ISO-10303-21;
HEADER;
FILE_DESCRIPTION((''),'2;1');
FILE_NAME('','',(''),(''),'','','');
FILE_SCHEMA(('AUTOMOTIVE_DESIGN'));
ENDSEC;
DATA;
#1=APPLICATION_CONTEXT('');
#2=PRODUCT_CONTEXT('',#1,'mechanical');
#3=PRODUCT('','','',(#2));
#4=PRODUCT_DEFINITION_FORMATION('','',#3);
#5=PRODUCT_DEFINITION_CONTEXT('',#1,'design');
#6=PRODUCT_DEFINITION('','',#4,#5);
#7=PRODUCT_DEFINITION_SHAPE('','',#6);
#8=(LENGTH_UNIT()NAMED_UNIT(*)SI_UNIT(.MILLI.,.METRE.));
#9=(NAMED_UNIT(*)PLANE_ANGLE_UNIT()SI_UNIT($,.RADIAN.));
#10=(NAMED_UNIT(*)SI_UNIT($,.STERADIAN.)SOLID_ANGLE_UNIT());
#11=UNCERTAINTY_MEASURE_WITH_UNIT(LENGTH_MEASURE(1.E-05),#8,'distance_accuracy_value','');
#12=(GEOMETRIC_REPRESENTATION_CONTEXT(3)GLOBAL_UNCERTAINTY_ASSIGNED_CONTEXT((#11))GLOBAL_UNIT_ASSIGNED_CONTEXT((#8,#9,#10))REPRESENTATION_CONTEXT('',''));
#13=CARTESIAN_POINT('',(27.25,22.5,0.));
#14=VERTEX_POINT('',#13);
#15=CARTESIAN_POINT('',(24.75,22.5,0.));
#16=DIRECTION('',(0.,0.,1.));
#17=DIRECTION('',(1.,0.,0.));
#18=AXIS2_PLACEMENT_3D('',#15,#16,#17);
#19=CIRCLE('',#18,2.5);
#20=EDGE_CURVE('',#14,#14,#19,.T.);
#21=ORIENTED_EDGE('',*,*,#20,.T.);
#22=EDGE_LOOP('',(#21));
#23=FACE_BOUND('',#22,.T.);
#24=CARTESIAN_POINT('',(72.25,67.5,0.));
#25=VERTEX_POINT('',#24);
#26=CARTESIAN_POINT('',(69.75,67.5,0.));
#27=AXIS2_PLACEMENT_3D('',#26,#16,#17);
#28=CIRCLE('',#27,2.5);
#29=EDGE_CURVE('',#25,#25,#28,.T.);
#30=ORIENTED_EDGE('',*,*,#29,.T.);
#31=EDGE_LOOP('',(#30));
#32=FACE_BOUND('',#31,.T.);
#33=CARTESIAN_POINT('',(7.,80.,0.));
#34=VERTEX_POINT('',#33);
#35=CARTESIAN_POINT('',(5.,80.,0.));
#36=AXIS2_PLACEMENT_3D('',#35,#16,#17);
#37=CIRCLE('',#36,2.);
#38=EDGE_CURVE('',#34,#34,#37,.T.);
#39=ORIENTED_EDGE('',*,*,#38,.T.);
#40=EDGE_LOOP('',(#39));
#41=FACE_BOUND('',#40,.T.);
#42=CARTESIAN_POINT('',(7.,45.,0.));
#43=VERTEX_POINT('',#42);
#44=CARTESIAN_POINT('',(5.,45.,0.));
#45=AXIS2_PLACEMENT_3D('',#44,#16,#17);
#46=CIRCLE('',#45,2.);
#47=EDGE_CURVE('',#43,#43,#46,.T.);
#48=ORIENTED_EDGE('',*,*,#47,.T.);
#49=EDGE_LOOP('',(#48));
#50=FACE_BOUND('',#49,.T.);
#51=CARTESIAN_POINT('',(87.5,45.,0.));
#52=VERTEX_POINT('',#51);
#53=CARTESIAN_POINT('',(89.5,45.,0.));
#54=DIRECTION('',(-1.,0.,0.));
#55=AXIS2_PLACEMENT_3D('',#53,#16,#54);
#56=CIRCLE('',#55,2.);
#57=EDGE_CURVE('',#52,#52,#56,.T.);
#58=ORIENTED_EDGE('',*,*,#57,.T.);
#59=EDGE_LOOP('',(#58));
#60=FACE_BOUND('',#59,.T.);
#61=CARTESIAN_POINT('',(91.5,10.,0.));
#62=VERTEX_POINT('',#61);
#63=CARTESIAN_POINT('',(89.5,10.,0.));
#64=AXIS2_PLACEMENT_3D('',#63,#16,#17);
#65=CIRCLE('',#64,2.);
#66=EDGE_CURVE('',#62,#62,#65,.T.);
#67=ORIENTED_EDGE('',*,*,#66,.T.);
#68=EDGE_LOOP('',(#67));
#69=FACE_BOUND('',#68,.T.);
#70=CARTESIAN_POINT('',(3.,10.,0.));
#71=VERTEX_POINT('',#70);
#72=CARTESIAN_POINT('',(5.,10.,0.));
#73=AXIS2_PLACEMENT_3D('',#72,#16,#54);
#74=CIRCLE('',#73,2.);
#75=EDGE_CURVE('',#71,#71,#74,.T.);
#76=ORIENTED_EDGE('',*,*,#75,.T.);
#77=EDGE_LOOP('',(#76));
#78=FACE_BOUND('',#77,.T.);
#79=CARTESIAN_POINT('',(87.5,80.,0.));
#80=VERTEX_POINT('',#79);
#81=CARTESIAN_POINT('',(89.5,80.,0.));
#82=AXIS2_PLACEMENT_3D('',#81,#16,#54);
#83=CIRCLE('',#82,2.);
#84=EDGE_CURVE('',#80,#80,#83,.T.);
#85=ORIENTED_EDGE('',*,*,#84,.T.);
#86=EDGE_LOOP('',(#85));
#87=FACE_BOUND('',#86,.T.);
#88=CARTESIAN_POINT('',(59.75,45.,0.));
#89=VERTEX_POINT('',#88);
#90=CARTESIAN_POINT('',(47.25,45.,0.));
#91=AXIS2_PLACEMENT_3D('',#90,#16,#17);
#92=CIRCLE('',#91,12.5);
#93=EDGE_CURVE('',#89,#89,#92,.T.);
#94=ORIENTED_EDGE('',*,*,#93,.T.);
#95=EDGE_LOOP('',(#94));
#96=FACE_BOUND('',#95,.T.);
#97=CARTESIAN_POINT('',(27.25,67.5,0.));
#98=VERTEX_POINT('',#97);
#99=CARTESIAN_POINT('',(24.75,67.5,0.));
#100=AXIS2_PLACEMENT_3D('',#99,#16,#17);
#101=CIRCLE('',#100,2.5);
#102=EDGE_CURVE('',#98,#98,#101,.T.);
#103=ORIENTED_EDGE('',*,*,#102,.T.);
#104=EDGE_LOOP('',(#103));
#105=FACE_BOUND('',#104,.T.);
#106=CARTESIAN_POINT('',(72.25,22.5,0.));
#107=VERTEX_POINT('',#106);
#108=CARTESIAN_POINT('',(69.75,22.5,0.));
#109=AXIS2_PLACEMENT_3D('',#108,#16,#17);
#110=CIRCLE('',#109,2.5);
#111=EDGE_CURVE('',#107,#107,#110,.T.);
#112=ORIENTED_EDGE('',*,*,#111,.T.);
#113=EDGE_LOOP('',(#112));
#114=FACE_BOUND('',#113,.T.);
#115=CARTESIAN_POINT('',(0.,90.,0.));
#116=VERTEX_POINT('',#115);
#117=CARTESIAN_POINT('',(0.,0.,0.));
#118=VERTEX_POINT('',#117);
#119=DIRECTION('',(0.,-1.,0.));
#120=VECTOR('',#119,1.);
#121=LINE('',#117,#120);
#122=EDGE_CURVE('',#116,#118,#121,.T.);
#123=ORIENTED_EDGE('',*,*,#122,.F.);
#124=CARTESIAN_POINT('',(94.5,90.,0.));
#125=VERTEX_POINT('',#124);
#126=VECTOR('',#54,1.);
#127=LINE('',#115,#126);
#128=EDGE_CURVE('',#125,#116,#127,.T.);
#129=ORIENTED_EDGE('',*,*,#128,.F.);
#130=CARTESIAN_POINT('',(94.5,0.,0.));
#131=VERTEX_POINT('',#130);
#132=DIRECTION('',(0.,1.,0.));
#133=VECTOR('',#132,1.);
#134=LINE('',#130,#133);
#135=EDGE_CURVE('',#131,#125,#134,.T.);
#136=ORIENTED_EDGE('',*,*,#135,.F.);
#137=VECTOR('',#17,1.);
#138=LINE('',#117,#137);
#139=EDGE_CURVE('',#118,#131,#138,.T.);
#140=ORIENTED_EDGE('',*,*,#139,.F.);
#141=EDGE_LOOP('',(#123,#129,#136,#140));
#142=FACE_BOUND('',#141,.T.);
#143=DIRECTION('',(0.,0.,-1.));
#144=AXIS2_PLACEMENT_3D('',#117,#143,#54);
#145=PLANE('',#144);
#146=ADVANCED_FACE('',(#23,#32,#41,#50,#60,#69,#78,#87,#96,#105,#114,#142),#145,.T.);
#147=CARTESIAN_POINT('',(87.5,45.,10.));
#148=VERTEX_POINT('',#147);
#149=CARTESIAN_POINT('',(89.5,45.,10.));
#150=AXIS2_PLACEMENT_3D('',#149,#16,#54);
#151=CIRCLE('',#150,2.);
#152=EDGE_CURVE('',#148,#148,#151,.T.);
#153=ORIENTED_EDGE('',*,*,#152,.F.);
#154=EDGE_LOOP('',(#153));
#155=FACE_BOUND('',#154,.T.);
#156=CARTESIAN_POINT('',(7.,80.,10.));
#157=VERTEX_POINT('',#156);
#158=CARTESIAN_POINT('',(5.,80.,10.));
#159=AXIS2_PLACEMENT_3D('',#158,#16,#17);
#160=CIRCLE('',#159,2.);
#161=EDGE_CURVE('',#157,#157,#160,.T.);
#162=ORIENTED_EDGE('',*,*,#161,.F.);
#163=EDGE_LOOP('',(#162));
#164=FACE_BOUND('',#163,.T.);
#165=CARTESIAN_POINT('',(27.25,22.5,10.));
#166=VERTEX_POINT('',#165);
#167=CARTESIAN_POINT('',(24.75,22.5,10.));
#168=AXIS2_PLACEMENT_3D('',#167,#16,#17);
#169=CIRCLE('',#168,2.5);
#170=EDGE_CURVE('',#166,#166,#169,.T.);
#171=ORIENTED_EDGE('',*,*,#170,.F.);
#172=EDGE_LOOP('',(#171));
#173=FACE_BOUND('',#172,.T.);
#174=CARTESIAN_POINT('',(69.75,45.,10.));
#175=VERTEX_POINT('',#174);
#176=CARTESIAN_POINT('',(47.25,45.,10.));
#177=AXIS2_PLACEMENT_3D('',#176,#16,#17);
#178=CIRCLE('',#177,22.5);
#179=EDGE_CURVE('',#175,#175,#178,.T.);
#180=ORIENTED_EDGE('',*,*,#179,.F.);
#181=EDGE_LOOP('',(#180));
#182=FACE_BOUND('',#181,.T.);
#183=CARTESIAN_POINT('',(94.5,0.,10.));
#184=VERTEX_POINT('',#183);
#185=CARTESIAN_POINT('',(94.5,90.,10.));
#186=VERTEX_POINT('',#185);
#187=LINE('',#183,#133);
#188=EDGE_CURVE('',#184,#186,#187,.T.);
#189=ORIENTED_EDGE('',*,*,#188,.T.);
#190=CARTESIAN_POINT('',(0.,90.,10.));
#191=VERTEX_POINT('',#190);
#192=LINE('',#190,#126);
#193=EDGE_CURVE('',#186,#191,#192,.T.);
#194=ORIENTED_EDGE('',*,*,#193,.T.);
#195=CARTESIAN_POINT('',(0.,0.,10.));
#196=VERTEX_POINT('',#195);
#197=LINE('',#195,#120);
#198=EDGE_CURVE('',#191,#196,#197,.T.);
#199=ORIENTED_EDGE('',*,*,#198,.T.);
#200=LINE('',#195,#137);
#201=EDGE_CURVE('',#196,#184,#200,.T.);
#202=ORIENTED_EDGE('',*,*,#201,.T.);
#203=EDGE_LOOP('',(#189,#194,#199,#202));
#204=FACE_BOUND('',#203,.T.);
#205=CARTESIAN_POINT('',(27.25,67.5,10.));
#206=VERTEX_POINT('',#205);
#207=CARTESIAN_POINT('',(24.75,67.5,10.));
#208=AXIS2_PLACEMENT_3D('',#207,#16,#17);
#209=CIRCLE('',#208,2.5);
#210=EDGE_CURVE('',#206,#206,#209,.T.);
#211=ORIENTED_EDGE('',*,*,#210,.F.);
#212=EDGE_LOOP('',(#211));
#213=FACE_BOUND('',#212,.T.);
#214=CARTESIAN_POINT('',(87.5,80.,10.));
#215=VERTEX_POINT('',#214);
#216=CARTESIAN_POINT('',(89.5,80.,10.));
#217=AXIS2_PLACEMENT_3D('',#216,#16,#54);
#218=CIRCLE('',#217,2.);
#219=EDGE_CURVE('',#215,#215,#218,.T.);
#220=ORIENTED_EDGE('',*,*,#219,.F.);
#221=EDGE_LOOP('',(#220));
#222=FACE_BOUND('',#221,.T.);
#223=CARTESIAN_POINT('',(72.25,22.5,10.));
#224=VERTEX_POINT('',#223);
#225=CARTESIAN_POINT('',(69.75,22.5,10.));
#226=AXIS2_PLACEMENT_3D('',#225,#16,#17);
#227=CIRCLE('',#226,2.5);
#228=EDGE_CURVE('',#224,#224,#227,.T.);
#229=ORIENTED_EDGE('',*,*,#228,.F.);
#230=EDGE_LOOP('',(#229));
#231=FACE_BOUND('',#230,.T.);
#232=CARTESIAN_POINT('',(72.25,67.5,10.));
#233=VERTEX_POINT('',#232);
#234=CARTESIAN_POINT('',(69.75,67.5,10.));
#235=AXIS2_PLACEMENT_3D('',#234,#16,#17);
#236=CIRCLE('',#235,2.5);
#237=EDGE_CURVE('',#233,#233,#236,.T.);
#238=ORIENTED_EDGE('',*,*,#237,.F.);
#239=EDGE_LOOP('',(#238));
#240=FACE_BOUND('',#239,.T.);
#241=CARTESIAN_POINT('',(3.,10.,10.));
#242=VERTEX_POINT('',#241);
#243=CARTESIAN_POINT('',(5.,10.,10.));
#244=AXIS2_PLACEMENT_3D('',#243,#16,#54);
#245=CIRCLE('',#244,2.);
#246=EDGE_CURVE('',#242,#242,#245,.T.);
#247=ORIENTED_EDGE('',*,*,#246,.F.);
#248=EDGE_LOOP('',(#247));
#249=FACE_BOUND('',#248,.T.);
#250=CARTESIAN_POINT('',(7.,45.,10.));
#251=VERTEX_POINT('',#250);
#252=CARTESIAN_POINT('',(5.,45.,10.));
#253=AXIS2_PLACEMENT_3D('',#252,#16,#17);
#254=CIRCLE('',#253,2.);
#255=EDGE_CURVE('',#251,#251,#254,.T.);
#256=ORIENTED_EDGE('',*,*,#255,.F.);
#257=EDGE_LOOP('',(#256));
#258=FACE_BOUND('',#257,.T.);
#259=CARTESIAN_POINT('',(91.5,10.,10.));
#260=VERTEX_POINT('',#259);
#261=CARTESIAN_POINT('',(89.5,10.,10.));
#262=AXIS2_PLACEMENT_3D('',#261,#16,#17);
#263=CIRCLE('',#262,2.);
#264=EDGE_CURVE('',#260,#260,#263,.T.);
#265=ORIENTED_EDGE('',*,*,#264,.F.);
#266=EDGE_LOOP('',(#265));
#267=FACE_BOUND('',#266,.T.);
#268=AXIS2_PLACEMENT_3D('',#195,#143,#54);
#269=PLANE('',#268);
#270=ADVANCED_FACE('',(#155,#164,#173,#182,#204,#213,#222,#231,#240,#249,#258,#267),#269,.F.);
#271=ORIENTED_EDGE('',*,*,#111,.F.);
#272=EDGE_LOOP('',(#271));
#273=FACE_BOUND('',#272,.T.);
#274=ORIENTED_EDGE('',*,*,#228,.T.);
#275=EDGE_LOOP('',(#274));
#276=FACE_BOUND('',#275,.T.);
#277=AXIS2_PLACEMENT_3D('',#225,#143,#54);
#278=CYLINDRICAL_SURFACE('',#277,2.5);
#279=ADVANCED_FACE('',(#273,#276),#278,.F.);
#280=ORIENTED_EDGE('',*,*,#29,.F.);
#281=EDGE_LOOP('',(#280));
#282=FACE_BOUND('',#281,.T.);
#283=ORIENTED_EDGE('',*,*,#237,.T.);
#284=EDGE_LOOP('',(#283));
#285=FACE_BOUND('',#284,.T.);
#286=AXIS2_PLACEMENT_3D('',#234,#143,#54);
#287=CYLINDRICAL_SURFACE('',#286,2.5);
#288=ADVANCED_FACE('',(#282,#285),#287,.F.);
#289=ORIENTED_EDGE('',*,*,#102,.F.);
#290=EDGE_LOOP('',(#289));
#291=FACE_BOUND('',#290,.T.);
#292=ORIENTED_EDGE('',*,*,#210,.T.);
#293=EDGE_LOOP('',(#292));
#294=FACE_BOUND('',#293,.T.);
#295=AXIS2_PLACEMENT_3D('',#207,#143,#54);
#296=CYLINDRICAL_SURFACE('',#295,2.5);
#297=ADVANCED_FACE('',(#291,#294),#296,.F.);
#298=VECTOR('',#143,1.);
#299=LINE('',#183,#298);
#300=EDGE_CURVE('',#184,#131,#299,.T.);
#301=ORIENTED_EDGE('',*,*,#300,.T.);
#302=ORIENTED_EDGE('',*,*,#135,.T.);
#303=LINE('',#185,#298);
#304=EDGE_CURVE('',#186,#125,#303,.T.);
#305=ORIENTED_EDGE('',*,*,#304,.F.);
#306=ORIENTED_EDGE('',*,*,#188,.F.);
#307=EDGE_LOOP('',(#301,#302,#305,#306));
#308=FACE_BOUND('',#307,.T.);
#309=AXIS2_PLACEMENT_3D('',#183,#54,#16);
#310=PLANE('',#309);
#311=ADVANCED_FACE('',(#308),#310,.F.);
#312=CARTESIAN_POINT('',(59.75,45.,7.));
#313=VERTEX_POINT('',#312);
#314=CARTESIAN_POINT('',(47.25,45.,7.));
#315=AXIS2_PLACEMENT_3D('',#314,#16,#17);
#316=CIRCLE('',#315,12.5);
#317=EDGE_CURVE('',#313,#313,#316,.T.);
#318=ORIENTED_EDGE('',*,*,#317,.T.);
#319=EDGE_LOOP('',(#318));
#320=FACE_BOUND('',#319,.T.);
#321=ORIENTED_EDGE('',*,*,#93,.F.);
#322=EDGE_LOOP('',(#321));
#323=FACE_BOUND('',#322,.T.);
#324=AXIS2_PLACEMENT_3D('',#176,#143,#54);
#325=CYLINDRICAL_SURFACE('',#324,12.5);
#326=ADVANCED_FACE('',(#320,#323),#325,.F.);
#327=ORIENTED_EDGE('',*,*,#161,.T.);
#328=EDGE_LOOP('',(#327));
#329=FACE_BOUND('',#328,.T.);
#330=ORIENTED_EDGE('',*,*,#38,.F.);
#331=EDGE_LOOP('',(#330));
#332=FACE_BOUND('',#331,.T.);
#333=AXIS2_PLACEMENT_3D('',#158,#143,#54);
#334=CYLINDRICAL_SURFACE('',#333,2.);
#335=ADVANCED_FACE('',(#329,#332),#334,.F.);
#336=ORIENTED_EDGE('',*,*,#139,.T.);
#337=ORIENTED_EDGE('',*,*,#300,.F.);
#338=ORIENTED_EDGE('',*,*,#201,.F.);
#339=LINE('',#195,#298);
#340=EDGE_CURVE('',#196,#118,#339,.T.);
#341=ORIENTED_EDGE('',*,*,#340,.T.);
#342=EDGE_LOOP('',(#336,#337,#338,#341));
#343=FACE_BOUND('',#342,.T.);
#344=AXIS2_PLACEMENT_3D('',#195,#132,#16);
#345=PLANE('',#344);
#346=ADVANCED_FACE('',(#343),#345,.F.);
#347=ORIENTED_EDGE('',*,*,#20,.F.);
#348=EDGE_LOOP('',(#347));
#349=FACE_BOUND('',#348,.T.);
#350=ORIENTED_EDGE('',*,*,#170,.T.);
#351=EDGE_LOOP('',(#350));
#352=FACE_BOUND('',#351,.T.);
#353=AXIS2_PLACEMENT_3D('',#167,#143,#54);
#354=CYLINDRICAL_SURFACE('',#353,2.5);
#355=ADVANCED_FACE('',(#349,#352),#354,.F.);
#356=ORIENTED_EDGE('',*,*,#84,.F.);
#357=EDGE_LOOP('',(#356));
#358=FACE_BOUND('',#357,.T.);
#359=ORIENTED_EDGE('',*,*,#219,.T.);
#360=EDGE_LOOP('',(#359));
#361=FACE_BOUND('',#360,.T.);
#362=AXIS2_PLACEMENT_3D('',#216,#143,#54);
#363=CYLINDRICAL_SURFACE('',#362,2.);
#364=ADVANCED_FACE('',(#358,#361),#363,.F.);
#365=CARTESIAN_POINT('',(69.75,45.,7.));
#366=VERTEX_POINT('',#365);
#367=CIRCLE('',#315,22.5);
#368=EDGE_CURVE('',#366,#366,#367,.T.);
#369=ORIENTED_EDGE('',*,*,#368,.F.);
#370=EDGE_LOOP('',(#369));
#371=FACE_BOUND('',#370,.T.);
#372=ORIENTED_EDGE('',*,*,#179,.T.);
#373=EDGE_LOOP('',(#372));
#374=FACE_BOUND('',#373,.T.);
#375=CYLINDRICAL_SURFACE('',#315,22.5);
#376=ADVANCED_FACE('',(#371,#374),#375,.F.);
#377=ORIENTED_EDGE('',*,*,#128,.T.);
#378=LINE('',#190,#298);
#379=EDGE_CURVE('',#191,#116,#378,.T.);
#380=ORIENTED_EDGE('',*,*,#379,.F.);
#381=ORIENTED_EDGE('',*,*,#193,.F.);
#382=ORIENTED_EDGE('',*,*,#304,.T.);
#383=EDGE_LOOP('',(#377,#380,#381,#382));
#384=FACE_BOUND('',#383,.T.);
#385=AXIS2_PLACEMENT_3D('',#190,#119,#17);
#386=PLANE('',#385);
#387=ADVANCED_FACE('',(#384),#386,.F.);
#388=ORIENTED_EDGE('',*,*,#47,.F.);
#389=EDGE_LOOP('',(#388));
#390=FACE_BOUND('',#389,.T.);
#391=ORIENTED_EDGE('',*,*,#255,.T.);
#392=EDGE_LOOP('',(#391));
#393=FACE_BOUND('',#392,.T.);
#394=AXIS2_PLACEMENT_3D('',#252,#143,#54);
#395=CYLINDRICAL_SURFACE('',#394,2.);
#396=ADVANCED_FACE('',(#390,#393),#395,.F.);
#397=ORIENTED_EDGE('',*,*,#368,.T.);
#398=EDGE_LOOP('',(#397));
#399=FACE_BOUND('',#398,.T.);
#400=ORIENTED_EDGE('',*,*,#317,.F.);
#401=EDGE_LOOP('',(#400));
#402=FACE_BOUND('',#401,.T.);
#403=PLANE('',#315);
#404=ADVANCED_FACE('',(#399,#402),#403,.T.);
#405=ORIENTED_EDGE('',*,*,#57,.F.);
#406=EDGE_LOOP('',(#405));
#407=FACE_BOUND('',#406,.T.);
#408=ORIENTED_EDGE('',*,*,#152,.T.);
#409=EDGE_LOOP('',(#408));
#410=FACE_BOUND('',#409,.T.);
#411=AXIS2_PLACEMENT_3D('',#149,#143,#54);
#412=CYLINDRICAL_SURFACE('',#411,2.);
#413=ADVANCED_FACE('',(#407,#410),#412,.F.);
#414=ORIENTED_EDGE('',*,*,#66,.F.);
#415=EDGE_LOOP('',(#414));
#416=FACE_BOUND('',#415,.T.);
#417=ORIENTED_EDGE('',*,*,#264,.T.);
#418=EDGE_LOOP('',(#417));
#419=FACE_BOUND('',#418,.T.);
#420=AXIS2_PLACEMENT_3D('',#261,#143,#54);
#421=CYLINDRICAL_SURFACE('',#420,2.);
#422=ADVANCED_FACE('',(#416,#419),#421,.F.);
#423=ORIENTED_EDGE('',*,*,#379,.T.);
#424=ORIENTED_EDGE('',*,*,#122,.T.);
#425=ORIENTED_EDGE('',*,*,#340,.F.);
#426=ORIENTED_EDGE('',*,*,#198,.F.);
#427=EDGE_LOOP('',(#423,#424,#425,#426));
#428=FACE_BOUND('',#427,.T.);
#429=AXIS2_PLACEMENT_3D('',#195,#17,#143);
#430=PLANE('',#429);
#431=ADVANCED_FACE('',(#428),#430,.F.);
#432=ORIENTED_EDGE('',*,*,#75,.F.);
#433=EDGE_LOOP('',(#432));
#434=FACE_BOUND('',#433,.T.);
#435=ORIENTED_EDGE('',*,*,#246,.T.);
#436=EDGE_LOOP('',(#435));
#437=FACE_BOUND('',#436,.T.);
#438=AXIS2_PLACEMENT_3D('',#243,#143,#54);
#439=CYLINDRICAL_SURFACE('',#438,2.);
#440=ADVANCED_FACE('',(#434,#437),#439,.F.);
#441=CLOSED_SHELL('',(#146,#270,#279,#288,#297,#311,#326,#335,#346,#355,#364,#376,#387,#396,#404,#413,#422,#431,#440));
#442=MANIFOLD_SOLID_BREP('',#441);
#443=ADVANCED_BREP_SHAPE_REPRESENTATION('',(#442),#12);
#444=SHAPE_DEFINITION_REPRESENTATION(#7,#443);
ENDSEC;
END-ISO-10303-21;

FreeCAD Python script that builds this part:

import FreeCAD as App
import Part
import Sketcher


def add_polygon(sketch, points):
    """Adds a closed chain of lines whose ends are joined by coincident constraints."""
    first, n = sketch.GeometryCount, len(points)
    for a, b in zip(points, points[1:] + points[:1]):
        sketch.addGeometry(Part.LineSegment(App.Vector(*a, 0), App.Vector(*b, 0)), False)
    for i in range(n):
        sketch.addConstraint(Sketcher.Constraint("Coincident", first + i, 2, first + (i + 1) % n, 1))

doc = App.newDocument("Part")
body = doc.addObject("PartDesign::Body", "Body")

# Sketch on XY plane
sketch1 = body.newObject("Sketcher::SketchObject", "Sketch")
sketch1.AttachmentSupport = (doc.getObject("XY_Plane"), [""])
sketch1.MapMode = "FlatFace"
add_polygon(sketch1, [(0, 90), (0, 0), (94.5, 0), (94.5, 90)])  # lines 0-3
sketch1.addGeometry(Part.Circle(App.Vector(5, 10, 0), App.Vector(0, 0, 1), 2), False)  # 4
sketch1.addGeometry(Part.Circle(App.Vector(24.8, 22.5, 0), App.Vector(0, 0, 1), 2.5), False)  # 5
sketch1.addGeometry(Part.Circle(App.Vector(89.5, 10, 0), App.Vector(0, 0, 1), 2), False)  # 6
sketch1.addGeometry(Part.Circle(App.Vector(69.8, 22.5, 0), App.Vector(0, 0, 1), 2.5), False)  # 7
sketch1.addGeometry(Part.Circle(App.Vector(5, 45, 0), App.Vector(0, 0, 1), 2), False)  # 8
sketch1.addGeometry(Part.Circle(App.Vector(24.8, 67.5, 0), App.Vector(0, 0, 1), 2.5), False)  # 9
sketch1.addGeometry(Part.Circle(App.Vector(5, 80, 0), App.Vector(0, 0, 1), 2), False)  # 10
sketch1.addGeometry(Part.Circle(App.Vector(47.2, 45, 0), App.Vector(0, 0, 1), 12.5), False)  # 11
sketch1.addGeometry(Part.Circle(App.Vector(89.5, 45, 0), App.Vector(0, 0, 1), 2), False)  # 12
sketch1.addGeometry(Part.Circle(App.Vector(69.8, 67.5, 0), App.Vector(0, 0, 1), 2.5), False)  # 13
sketch1.addGeometry(Part.Circle(App.Vector(89.5, 80, 0), App.Vector(0, 0, 1), 2), False)  # 14
sketch1.addConstraint(Sketcher.Constraint("Vertical", 0))
sketch1.addConstraint(Sketcher.Constraint("Horizontal", 1))
sketch1.addConstraint(Sketcher.Constraint("Vertical", 2))
sketch1.addConstraint(Sketcher.Constraint("Horizontal", 3))
sketch1.addConstraint(Sketcher.Constraint("Coincident", 0, 2, -1, 1))
sketch1.addConstraint(Sketcher.Constraint("Equal", 4, 6))
sketch1.addConstraint(Sketcher.Constraint("Equal", 5, 7))
sketch1.addConstraint(Sketcher.Constraint("Equal", 6, 8))
sketch1.addConstraint(Sketcher.Constraint("Equal", 7, 9))
sketch1.addConstraint(Sketcher.Constraint("Equal", 8, 10))
sketch1.addConstraint(Sketcher.Constraint("Equal", 10, 12))
sketch1.addConstraint(Sketcher.Constraint("Equal", 9, 13))
sketch1.addConstraint(Sketcher.Constraint("Equal", 12, 14))
sketch1.addConstraint(Sketcher.Constraint("Horizontal", 4, 3, 6, 3))
sketch1.addConstraint(Sketcher.Constraint("Horizontal", 5, 3, 7, 3))
sketch1.addConstraint(Sketcher.Constraint("Horizontal", 8, 3, 11, 3))
sketch1.addConstraint(Sketcher.Constraint("Horizontal", 11, 3, 12, 3))
sketch1.addConstraint(Sketcher.Constraint("Horizontal", 9, 3, 13, 3))
sketch1.addConstraint(Sketcher.Constraint("Horizontal", 10, 3, 14, 3))
sketch1.addConstraint(Sketcher.Constraint("Vertical", 4, 3, 8, 3))
sketch1.addConstraint(Sketcher.Constraint("Vertical", 5, 3, 9, 3))
sketch1.addConstraint(Sketcher.Constraint("Vertical", 8, 3, 10, 3))
sketch1.addConstraint(Sketcher.Constraint("Vertical", 6, 3, 12, 3))
sketch1.addConstraint(Sketcher.Constraint("Vertical", 7, 3, 13, 3))
sketch1.addConstraint(Sketcher.Constraint("Vertical", 12, 3, 14, 3))
sketch1.addConstraint(Sketcher.Constraint("Diameter", 4, 4.0))
sketch1.addConstraint(Sketcher.Constraint("Diameter", 5, 5.0))
sketch1.addConstraint(Sketcher.Constraint("Diameter", 11, 25.0))
sketch1.addConstraint(Sketcher.Constraint("DistanceY", 0, 2, 0, 1, 90.0))
sketch1.addConstraint(Sketcher.Constraint("DistanceX", 1, 1, 1, 2, 94.5))
sketch1.addConstraint(Sketcher.Constraint("DistanceX", -1, 1, 4, 3, 5.0))
sketch1.addConstraint(Sketcher.Constraint("DistanceY", -1, 1, 4, 3, 10.0))
sketch1.addConstraint(Sketcher.Constraint("DistanceY", -1, 1, 8, 3, 45.0))
sketch1.addConstraint(Sketcher.Constraint("DistanceY", -1, 1, 10, 3, 80.0))
sketch1.addConstraint(Sketcher.Constraint("DistanceX", 5, 3, 7, 3, 45.0))
sketch1.addConstraint(Sketcher.Constraint("DistanceY", 5, 3, 9, 3, 45.0))
sketch1.addConstraint(Sketcher.Constraint("DistanceX", 6, 3, 1, 2, 5.0))
sketch1.addConstraint(Sketcher.Constraint("DistanceY", -1, 1, 5, 3, 22.5))
sketch1.addConstraint(Sketcher.Constraint("DistanceX", 5, 3, 11, 3, 22.5))
sketch1.addConstraint(Sketcher.Constraint("DistanceX", -1, 1, 5, 3, 24.75))
pad1 = body.newObject("PartDesign::Pad", "Pad")
pad1.Profile = sketch1
pad1.Length = 10

# Sketch on XY plane
sketch2 = body.newObject("Sketcher::SketchObject", "Sketch001")
sketch2.AttachmentSupport = (doc.getObject("XY_Plane"), [""])
sketch2.MapMode = "FlatFace"
sketch2.AttachmentOffset = App.Placement(App.Vector(0, 0, 10), App.Rotation())
sketch2.addGeometry(Part.Circle(App.Vector(47, 45, 0), App.Vector(0, 0, 1), 22), False)
sketch2.addConstraint(Sketcher.Constraint("Diameter", 0, 45.0))
sketch2.addConstraint(Sketcher.Constraint("DistanceY", -1, 1, 0, 3, 45.0))
sketch2.addConstraint(Sketcher.Constraint("DistanceX", -1, 1, 0, 3, 47.25))
pocket1 = body.newObject("PartDesign::Pocket", "Pocket")
pocket1.Profile = sketch2
pocket1.Length = 3

doc.recompute()
